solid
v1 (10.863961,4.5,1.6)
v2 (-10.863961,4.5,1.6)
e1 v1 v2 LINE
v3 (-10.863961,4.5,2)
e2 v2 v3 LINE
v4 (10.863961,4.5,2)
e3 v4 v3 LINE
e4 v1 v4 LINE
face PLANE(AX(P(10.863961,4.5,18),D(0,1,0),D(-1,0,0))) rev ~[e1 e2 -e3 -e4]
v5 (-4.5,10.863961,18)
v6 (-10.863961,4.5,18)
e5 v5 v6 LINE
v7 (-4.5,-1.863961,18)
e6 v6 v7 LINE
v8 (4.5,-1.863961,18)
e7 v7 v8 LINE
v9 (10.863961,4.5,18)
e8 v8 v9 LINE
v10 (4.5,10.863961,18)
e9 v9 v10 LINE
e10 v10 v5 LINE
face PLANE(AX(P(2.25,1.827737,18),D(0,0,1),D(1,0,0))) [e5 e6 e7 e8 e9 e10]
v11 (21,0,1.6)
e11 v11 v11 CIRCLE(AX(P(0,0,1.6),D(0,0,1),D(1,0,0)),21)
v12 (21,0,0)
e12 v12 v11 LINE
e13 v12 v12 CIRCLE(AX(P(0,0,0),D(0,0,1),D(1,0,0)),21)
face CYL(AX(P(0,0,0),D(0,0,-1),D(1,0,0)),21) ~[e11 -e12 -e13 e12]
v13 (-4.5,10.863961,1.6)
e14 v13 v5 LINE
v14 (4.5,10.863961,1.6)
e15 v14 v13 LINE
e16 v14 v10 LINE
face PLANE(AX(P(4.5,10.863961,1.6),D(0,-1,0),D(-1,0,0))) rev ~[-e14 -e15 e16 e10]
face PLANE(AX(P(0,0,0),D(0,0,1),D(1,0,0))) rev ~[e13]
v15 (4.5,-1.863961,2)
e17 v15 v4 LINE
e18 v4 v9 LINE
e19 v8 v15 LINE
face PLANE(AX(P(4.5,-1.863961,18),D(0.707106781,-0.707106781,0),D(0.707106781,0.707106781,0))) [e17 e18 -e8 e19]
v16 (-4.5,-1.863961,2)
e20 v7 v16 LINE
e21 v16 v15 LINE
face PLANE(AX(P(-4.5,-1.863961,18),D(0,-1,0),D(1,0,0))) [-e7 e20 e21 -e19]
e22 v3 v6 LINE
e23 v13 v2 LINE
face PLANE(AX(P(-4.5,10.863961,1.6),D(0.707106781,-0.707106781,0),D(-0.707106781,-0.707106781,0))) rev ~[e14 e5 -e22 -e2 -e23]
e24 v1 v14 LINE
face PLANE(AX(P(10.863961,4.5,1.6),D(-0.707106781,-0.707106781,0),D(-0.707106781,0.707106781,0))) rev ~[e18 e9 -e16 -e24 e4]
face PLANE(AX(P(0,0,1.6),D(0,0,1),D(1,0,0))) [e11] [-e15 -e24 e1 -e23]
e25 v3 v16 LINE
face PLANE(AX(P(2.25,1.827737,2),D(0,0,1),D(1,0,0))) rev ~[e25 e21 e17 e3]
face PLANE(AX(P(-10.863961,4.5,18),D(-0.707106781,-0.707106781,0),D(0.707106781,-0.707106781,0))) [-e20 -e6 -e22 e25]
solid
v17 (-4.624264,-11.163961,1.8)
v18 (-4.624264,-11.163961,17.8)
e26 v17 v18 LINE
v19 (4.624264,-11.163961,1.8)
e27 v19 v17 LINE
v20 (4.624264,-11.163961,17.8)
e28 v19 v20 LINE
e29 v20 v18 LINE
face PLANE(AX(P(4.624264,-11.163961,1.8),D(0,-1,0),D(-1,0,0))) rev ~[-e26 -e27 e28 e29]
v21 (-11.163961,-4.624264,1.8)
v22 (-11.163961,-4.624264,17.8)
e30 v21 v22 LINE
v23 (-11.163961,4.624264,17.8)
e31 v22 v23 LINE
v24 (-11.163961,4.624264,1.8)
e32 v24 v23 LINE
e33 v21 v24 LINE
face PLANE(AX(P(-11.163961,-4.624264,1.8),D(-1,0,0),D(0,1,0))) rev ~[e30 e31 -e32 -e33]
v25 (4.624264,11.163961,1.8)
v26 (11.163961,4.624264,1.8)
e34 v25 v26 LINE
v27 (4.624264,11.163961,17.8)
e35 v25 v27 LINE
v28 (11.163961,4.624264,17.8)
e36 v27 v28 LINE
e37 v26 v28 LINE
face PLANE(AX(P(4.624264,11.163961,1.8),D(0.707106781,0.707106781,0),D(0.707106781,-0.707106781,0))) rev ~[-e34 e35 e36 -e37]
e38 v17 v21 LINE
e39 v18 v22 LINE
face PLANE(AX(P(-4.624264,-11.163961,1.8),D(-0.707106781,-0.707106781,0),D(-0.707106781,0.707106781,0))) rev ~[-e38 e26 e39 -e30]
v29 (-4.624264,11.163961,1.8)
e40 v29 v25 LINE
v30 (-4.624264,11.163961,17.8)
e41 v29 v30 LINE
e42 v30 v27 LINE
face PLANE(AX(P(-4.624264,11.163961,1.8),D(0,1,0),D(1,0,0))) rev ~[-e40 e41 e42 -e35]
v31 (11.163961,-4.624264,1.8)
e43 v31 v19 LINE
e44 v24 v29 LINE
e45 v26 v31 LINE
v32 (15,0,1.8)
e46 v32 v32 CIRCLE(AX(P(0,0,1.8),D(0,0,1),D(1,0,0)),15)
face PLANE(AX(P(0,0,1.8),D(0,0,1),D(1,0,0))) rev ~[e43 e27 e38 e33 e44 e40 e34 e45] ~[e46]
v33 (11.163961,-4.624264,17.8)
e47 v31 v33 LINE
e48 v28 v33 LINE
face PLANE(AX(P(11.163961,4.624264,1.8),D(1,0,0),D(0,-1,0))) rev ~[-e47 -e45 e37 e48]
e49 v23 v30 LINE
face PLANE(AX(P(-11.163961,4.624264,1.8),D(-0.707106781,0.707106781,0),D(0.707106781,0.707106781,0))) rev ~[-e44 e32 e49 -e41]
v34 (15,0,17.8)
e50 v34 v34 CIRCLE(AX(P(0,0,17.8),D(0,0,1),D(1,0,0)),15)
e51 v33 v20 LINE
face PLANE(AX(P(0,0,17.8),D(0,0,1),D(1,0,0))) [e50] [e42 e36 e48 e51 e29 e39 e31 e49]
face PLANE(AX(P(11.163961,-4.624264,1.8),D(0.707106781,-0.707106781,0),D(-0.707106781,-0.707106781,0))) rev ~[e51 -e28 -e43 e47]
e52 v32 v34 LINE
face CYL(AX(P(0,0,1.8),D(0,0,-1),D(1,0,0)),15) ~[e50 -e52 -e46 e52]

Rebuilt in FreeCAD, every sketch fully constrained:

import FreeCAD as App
import Part
import Sketcher

V = App.Vector

doc = App.newDocument("Part")
params = doc.addObject("Spreadsheet::Sheet", "Params")
for row, (alias, value) in enumerate([
    ("sketch1_diameter", "42 mm"),
    ("pad1_length", "1.6 mm"),
    ("sketch2_width", "9 mm"),
    ("sketch2_length", "9 mm"),
    ("pad2_length", "16.4 mm"),
    ("sketch3_width", "9 mm"),
    ("sketch3_length", "9 mm"),
    ("pocket1_length", "16.4 mm"),
    ("sketch4_width", "9 mm"),
    ("sketch4_length", "9 mm"),
    ("pad3_length", "16 mm"),
    ("sketch5_diameter", "30 mm"),
    ("pad4_length", "16 mm"),
], start=1):
    params.set(f"A{row}", alias)
    params.set(f"B{row}", "=" + value)
    params.setAlias(f"B{row}", alias)

body = doc.addObject("PartDesign::Body", "Body")

# Sketch on XY plane
sketch1 = body.newObject("Sketcher::SketchObject", "Sketch")
sketch1.AttachmentSupport = (doc.getObject("XY_Plane"), [""])
sketch1.MapMode = "FlatFace"
sketch1.addGeometry(Part.Circle(V(0, 0, 0), V(0, 0, 1), 21), False)
sketch1.addConstraint([
    Sketcher.Constraint("Coincident", 0, 3, -1, 1),
    Sketcher.Constraint("Diameter", 0, 42.0),
])
sketch1.setExpression("Constraints[1]", "Params.sketch1_diameter")
pad1 = body.newObject("PartDesign::Pad", "Pad")
pad1.Profile = sketch1
pad1.setExpression("Length", "Params.pad1_length")

# Sketch on XY plane
sketch2 = body.newObject("Sketcher::SketchObject", "Sketch001")
sketch2.AttachmentSupport = (doc.getObject("XY_Plane"), [""])
sketch2.MapMode = "FlatFace"
sketch2.AttachmentOffset = App.Placement(V(0, 0, 1.6), App.Rotation())
sketch2.addGeometry([
    Part.LineSegment(V(11, -4, 0), V(11, 4, 0)),  # 0
    Part.LineSegment(V(11, 4, 0), V(4, 11, 0)),  # 1
    Part.LineSegment(V(4, 11, 0), V(-4, 11, 0)),  # 2
    Part.LineSegment(V(-4, 11, 0), V(-11, 4, 0)),  # 3
    Part.LineSegment(V(-11, 4, 0), V(-11, -4, 0)),  # 4
    Part.LineSegment(V(-11, -4, 0), V(-4, -11, 0)),  # 5
    Part.LineSegment(V(-4, -11, 0), V(4, -11, 0)),  # 6
    Part.LineSegment(V(4, -11, 0), V(11, -4, 0)),  # 7
], False)
sketch2.addConstraint([
    Sketcher.Constraint("Coincident", 0, 2, 1, 1),
    Sketcher.Constraint("Coincident", 1, 2, 2, 1),
    Sketcher.Constraint("Coincident", 2, 2, 3, 1),
    Sketcher.Constraint("Coincident", 3, 2, 4, 1),
    Sketcher.Constraint("Coincident", 4, 2, 5, 1),
    Sketcher.Constraint("Coincident", 5, 2, 6, 1),
    Sketcher.Constraint("Coincident", 6, 2, 7, 1),
    Sketcher.Constraint("Coincident", 7, 2, 0, 1),
    Sketcher.Constraint("Vertical", 0),
    Sketcher.Constraint("Horizontal", 2),
    Sketcher.Constraint("Vertical", 4),
    Sketcher.Constraint("Horizontal", 6),
    Sketcher.Constraint("Symmetric", 0, 2, 4, 2, -1, 1),
    Sketcher.Constraint("Symmetric", 1, 2, 5, 2, -1, 1),
    Sketcher.Constraint("Perpendicular", 1, 3),
    Sketcher.Constraint("Perpendicular", 5, 7),
    Sketcher.Constraint("Horizontal", 0, 2, 3, 2),
    Sketcher.Constraint("Horizontal", 4, 2, 7, 2),
    Sketcher.Constraint("Vertical", 2, 2, 5, 2),
    Sketcher.Constraint("Equal", 6, 0),
    Sketcher.Constraint("DistanceX", 2, 2, 2, 1, 9.0),
    Sketcher.Constraint("Distance", 1, 9.0),
])
sketch2.setExpression("Constraints[20]", "Params.sketch2_width")
sketch2.setExpression("Constraints[21]", "Params.sketch2_length")
pad2 = body.newObject("PartDesign::Pad", "Pad001")
pad2.Profile = sketch2
pad2.setExpression("Length", "Params.pad2_length")

# Sketch on XY plane
sketch3 = body.newObject("Sketcher::SketchObject", "Sketch002")
sketch3.AttachmentSupport = (doc.getObject("XY_Plane"), [""])
sketch3.MapMode = "FlatFace"
sketch3.AttachmentOffset = App.Placement(V(0, 0, 18), App.Rotation())
sketch3.addGeometry([
    Part.LineSegment(V(11, 4, 0), V(-11, 4, 0)),  # 0
    Part.LineSegment(V(-11, 4, 0), V(-11, -4, 0)),  # 1
    Part.LineSegment(V(-11, -4, 0), V(-4, -11, 0)),  # 2
    Part.LineSegment(V(-4, -11, 0), V(4, -11, 0)),  # 3
    Part.LineSegment(V(4, -11, 0), V(11, -4, 0)),  # 4
    Part.LineSegment(V(11, -4, 0), V(11, 4, 0)),  # 5
], False)
sketch3.addConstraint([
    Sketcher.Constraint("Coincident", 0, 2, 1, 1),
    Sketcher.Constraint("Coincident", 1, 2, 2, 1),
    Sketcher.Constraint("Coincident", 2, 2, 3, 1),
    Sketcher.Constraint("Coincident", 3, 2, 4, 1),
    Sketcher.Constraint("Coincident", 4, 2, 5, 1),
    Sketcher.Constraint("Coincident", 5, 2, 0, 1),
    Sketcher.Constraint("Horizontal", 0),
    Sketcher.Constraint("Vertical", 1),
    Sketcher.Constraint("Horizontal", 3),
    Sketcher.Constraint("Vertical", 5),
    Sketcher.Constraint("Symmetric", 0, 2, 4, 2, -1, 1),
    Sketcher.Constraint("Perpendicular", 2, 4),
    Sketcher.Constraint("Horizontal", 1, 2, 4, 2),
    Sketcher.Constraint("Equal", 3, 1),
    Sketcher.Constraint("Equal", 2, 4),
    Sketcher.Constraint("DistanceX", 3, 1, 3, 2, 9.0),
    Sketcher.Constraint("Distance", 2, 9.0),
])
sketch3.setExpression("Constraints[15]", "Params.sketch3_width")
sketch3.setExpression("Constraints[16]", "Params.sketch3_length")
pocket1 = body.newObject("PartDesign::Pocket", "Pocket")
pocket1.Profile = sketch3
pocket1.setExpression("Length", "Params.pocket1_length")

# Sketch on XY plane
sketch4 = body.newObject("Sketcher::SketchObject", "Sketch003")
sketch4.AttachmentSupport = (doc.getObject("XY_Plane"), [""])
sketch4.MapMode = "FlatFace"
sketch4.AttachmentOffset = App.Placement(V(0, 0, 18), App.Rotation())
sketch4.addGeometry([
    Part.LineSegment(V(-4, -2, 0), V(4, -2, 0)),
    Part.LineSegment(V(4, -2, 0), V(11, 4, 0)),
    Part.LineSegment(V(11, 4, 0), V(-11, 4, 0)),
    Part.LineSegment(V(-11, 4, 0), V(-4, -2, 0)),
], False)
sketch4.addConstraint([
    Sketcher.Constraint("Coincident", 0, 2, 1, 1),
    Sketcher.Constraint("Coincident", 1, 2, 2, 1),
    Sketcher.Constraint("Coincident", 2, 2, 3, 1),
    Sketcher.Constraint("Coincident", 3, 2, 0, 1),
    Sketcher.Constraint("Horizontal", 0),
    Sketcher.Constraint("Horizontal", 2),
    Sketcher.Constraint("Perpendicular", 1, 3),
    Sketcher.Constraint("Equal", 1, 3),
    Sketcher.Constraint("DistanceX", 0, 1, 0, 2, 9.0),
    Sketcher.Constraint("Distance", 1, 9.0),
    Sketcher.Constraint("DistanceX", -1, 1, 0, 2, 4.5),
    Sketcher.Constraint("DistanceY", -1, 1, 1, 2, 4.5),
])
sketch4.setExpression("Constraints[8]", "Params.sketch4_width")
sketch4.setExpression("Constraints[9]", "Params.sketch4_length")
pad3 = body.newObject("PartDesign::Pad", "Pad002")
pad3.Profile = sketch4
pad3.setExpression("Length", "Params.pad3_length")
pad3.Reversed = True
body2 = doc.addObject("PartDesign::Body", "Body001")

# Sketch on XY plane
sketch5 = body2.newObject("Sketcher::SketchObject", "Sketch004")
sketch5.AttachmentSupport = (doc.getObject("XY_Plane001"), [""])
sketch5.MapMode = "FlatFace"
sketch5.AttachmentOffset = App.Placement(V(0, 0, 1.8), App.Rotation())
sketch5.addGeometry([
    Part.Circle(V(0, 0, 0), V(0, 0, 1), 15),  # 0
    Part.LineSegment(V(-11, -5, 0), V(-11, 5, 0)),  # 1
    Part.LineSegment(V(-11, 5, 0), V(-5, 11, 0)),  # 2
    Part.LineSegment(V(-5, 11, 0), V(5, 11, 0)),  # 3
    Part.LineSegment(V(5, 11, 0), V(11, 5, 0)),  # 4
    Part.LineSegment(V(11, 5, 0), V(11, -5, 0)),  # 5
    Part.LineSegment(V(11, -5, 0), V(5, -11, 0)),  # 6
    Part.LineSegment(V(5, -11, 0), V(-5, -11, 0)),  # 7
    Part.LineSegment(V(-5, -11, 0), V(-11, -5, 0)),  # 8
], False)
sketch5.addConstraint([
    Sketcher.Constraint("Coincident", 1, 2, 2, 1),
    Sketcher.Constraint("Coincident", 2, 2, 3, 1),
    Sketcher.Constraint("Coincident", 3, 2, 4, 1),
    Sketcher.Constraint("Coincident", 4, 2, 5, 1),
    Sketcher.Constraint("Coincident", 5, 2, 6, 1),
    Sketcher.Constraint("Coincident", 6, 2, 7, 1),
    Sketcher.Constraint("Coincident", 7, 2, 8, 1),
    Sketcher.Constraint("Coincident", 8, 2, 1, 1),
    Sketcher.Constraint("Vertical", 1),
    Sketcher.Constraint("Horizontal", 3),
    Sketcher.Constraint("Vertical", 5),
    Sketcher.Constraint("Horizontal", 7),
    Sketcher.Constraint("Coincident", 0, 3, -1, 1),
    Sketcher.Constraint("Symmetric", 1, 2, 5, 2, -1, 1),
    Sketcher.Constraint("Symmetric", 2, 2, 6, 2, -1, 1),
    Sketcher.Constraint("Perpendicular", 2, 4),
    Sketcher.Constraint("Perpendicular", 6, 8),
    Sketcher.Constraint("Horizontal", 1, 2, 4, 2),
    Sketcher.Constraint("Horizontal", 5, 2, 8, 2),
    Sketcher.Constraint("Vertical", 3, 2, 6, 2),
    Sketcher.Constraint("Equal", 7, 1),
    Sketcher.Constraint("Diameter", 0, 30.0),
    Sketcher.Constraint("DistanceX", 3, 1, 3, 2, 9.248528),
    Sketcher.Constraint("Distance", 2, 9.248528),
])
sketch5.setExpression("Constraints[21]", "Params.sketch5_diameter")
pad4 = body2.newObject("PartDesign::Pad", "Pad003")
pad4.Profile = sketch5
pad4.setExpression("Length", "Params.pad4_length")

doc.recompute()
